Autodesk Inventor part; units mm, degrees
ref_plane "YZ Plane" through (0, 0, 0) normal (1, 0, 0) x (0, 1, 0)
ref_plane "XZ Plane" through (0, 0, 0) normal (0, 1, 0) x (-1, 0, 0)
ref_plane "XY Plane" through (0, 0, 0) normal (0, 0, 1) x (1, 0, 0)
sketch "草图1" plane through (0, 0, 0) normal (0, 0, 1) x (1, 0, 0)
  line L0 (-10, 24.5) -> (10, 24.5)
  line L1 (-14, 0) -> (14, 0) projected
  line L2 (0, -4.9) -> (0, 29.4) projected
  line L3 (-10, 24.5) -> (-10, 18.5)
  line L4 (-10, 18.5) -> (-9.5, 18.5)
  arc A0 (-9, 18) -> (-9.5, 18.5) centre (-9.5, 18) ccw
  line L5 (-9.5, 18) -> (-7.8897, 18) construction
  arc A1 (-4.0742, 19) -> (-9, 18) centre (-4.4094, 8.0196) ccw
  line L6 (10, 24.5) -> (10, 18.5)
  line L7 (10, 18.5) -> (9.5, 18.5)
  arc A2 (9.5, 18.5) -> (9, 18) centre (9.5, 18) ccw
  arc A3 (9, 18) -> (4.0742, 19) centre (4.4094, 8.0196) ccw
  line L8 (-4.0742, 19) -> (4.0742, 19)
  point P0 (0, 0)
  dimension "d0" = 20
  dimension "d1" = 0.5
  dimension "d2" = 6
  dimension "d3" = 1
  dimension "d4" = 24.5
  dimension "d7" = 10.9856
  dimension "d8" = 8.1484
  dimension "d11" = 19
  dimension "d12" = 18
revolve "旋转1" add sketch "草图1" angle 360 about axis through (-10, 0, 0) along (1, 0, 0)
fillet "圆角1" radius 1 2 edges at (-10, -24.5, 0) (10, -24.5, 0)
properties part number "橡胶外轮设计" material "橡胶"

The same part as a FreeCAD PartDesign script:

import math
import FreeCAD as App
import Part
import Sketcher
Q = App.Units.Quantity


def edges_at(feature, points):
    """Names of the edges that pass closest to the given points."""
    edges = feature.Shape.Edges
    near = lambda p: min(range(len(edges)), key=lambda i: edges[i].distToShape(Part.Vertex(*p))[0])
    return sorted({f"Edge{near(p) + 1}" for p in points})

doc = App.newDocument("Part")
body = doc.addObject("PartDesign::Body", "Body")

sketch1 = body.newObject("Sketcher::SketchObject", "Sketch")
sketch1.AttachmentSupport = (doc.getObject("XY_Plane"), [""])
sketch1.MapMode = "FlatFace"
sketch1.addGeometry(Part.LineSegment(App.Vector(-10, 24.5, 0), App.Vector(-10, 18.5, 0)), False)
sketch1.addGeometry(Part.LineSegment(App.Vector(-10, 18.5, 0), App.Vector(-9.5, 18.5, 0)), False)
sketch1.addGeometry(Part.ArcOfCircle(Part.Circle(App.Vector(-9.5, 18, 0), App.Vector(0, 0, 1), 0.5), math.radians(0), math.radians(90)), False)
sketch1.addGeometry(Part.ArcOfCircle(Part.Circle(App.Vector(-4.4, 8, 0), App.Vector(0, 0, 1), 11), math.radians(88), math.radians(115)), False)
sketch1.addGeometry(Part.LineSegment(App.Vector(-4.1, 19, 0), App.Vector(4.1, 19, 0)), False)
sketch1.addGeometry(Part.ArcOfCircle(Part.Circle(App.Vector(4.4, 8, 0), App.Vector(0, 0, 1), 11), math.radians(65), math.radians(92)), False)
sketch1.addGeometry(Part.ArcOfCircle(Part.Circle(App.Vector(9.5, 18, 0), App.Vector(0, 0, 1), 0.5), math.radians(90), math.radians(180)), False)
sketch1.addGeometry(Part.LineSegment(App.Vector(9.5, 18.5, 0), App.Vector(10, 18.5, 0)), False)
sketch1.addGeometry(Part.LineSegment(App.Vector(10, 18.5, 0), App.Vector(10, 24.5, 0)), False)
sketch1.addGeometry(Part.LineSegment(App.Vector(10, 24.5, 0), App.Vector(-10, 24.5, 0)), False)
sketch1.addConstraint(Sketcher.Constraint("Coincident", 0, 2, 1, 1))
sketch1.addConstraint(Sketcher.Constraint("Tangent", 1, 2, 2, 2))
sketch1.addConstraint(Sketcher.Constraint("Coincident", 2, 1, 3, 2))
sketch1.addConstraint(Sketcher.Constraint("Coincident", 3, 1, 4, 1))
sketch1.addConstraint(Sketcher.Constraint("Coincident", 4, 2, 5, 2))
sketch1.addConstraint(Sketcher.Constraint("Coincident", 5, 1, 6, 2))
sketch1.addConstraint(Sketcher.Constraint("Tangent", 6, 1, 7, 1))
sketch1.addConstraint(Sketcher.Constraint("Coincident", 7, 2, 8, 1))
sketch1.addConstraint(Sketcher.Constraint("Coincident", 8, 2, 9, 1))
sketch1.addConstraint(Sketcher.Constraint("Coincident", 9, 2, 0, 1))
sketch1.addConstraint(Sketcher.Constraint("Vertical", 0))
sketch1.addConstraint(Sketcher.Constraint("Horizontal", 1))
sketch1.addConstraint(Sketcher.Constraint("Horizontal", 4))
sketch1.addConstraint(Sketcher.Constraint("Horizontal", 7))
sketch1.addConstraint(Sketcher.Constraint("Vertical", 8))
sketch1.addConstraint(Sketcher.Constraint("Horizontal", 9))
sketch1.addConstraint(Sketcher.Constraint("Equal", 3, 5))
sketch1.addConstraint(Sketcher.Constraint("Equal", 2, 6))
sketch1.addConstraint(Sketcher.Constraint("Symmetric", 3, 3, 5, 3, -2))
sketch1.addConstraint(Sketcher.Constraint("Symmetric", 2, 3, 6, 3, -2))
sketch1.addConstraint(Sketcher.Constraint("Horizontal", 6, 3, 2, 1))
sketch1.addConstraint(Sketcher.Constraint("Equal", 1, 7))
sketch1.addConstraint(Sketcher.Constraint("Radius", 2, Q("0.5 mm")))
sketch1.addConstraint(Sketcher.Constraint("DistanceX", 9, 2, 9, 1, Q("20 mm")))
sketch1.addConstraint(Sketcher.Constraint("DistanceY", 0, 2, 0, 1, Q("6 mm")))
sketch1.addConstraint(Sketcher.Constraint("DistanceX", 1, 1, 1, 2, Q("0.5 mm")))
sketch1.addConstraint(Sketcher.Constraint("DistanceY", -1, 1, 2, 3, Q("18 mm")))
sketch1.addConstraint(Sketcher.Constraint("DistanceY", -1, 1, 3, 1, Q("19 mm")))
sketch1.addConstraint(Sketcher.Constraint("Radius", 3, Q("10.9855 mm")))
sketch1.addConstraint(Sketcher.Constraint("DistanceX", 4, 1, 4, 2, Q("8.1484 mm")))
revolution = body.newObject("PartDesign::Revolution", "Revolution")
revolution.Profile = sketch1
revolution.ReferenceAxis = (sketch1, ["H_Axis"])
revolution.Angle = 360
doc.recompute()

fillet = body.newObject("PartDesign::Fillet", "Fillet")
fillet.Base = (revolution, edges_at(revolution, [(-10, -24.5, 0), (10, -24.5, 0)]))
fillet.Radius = 1

doc.recompute()
